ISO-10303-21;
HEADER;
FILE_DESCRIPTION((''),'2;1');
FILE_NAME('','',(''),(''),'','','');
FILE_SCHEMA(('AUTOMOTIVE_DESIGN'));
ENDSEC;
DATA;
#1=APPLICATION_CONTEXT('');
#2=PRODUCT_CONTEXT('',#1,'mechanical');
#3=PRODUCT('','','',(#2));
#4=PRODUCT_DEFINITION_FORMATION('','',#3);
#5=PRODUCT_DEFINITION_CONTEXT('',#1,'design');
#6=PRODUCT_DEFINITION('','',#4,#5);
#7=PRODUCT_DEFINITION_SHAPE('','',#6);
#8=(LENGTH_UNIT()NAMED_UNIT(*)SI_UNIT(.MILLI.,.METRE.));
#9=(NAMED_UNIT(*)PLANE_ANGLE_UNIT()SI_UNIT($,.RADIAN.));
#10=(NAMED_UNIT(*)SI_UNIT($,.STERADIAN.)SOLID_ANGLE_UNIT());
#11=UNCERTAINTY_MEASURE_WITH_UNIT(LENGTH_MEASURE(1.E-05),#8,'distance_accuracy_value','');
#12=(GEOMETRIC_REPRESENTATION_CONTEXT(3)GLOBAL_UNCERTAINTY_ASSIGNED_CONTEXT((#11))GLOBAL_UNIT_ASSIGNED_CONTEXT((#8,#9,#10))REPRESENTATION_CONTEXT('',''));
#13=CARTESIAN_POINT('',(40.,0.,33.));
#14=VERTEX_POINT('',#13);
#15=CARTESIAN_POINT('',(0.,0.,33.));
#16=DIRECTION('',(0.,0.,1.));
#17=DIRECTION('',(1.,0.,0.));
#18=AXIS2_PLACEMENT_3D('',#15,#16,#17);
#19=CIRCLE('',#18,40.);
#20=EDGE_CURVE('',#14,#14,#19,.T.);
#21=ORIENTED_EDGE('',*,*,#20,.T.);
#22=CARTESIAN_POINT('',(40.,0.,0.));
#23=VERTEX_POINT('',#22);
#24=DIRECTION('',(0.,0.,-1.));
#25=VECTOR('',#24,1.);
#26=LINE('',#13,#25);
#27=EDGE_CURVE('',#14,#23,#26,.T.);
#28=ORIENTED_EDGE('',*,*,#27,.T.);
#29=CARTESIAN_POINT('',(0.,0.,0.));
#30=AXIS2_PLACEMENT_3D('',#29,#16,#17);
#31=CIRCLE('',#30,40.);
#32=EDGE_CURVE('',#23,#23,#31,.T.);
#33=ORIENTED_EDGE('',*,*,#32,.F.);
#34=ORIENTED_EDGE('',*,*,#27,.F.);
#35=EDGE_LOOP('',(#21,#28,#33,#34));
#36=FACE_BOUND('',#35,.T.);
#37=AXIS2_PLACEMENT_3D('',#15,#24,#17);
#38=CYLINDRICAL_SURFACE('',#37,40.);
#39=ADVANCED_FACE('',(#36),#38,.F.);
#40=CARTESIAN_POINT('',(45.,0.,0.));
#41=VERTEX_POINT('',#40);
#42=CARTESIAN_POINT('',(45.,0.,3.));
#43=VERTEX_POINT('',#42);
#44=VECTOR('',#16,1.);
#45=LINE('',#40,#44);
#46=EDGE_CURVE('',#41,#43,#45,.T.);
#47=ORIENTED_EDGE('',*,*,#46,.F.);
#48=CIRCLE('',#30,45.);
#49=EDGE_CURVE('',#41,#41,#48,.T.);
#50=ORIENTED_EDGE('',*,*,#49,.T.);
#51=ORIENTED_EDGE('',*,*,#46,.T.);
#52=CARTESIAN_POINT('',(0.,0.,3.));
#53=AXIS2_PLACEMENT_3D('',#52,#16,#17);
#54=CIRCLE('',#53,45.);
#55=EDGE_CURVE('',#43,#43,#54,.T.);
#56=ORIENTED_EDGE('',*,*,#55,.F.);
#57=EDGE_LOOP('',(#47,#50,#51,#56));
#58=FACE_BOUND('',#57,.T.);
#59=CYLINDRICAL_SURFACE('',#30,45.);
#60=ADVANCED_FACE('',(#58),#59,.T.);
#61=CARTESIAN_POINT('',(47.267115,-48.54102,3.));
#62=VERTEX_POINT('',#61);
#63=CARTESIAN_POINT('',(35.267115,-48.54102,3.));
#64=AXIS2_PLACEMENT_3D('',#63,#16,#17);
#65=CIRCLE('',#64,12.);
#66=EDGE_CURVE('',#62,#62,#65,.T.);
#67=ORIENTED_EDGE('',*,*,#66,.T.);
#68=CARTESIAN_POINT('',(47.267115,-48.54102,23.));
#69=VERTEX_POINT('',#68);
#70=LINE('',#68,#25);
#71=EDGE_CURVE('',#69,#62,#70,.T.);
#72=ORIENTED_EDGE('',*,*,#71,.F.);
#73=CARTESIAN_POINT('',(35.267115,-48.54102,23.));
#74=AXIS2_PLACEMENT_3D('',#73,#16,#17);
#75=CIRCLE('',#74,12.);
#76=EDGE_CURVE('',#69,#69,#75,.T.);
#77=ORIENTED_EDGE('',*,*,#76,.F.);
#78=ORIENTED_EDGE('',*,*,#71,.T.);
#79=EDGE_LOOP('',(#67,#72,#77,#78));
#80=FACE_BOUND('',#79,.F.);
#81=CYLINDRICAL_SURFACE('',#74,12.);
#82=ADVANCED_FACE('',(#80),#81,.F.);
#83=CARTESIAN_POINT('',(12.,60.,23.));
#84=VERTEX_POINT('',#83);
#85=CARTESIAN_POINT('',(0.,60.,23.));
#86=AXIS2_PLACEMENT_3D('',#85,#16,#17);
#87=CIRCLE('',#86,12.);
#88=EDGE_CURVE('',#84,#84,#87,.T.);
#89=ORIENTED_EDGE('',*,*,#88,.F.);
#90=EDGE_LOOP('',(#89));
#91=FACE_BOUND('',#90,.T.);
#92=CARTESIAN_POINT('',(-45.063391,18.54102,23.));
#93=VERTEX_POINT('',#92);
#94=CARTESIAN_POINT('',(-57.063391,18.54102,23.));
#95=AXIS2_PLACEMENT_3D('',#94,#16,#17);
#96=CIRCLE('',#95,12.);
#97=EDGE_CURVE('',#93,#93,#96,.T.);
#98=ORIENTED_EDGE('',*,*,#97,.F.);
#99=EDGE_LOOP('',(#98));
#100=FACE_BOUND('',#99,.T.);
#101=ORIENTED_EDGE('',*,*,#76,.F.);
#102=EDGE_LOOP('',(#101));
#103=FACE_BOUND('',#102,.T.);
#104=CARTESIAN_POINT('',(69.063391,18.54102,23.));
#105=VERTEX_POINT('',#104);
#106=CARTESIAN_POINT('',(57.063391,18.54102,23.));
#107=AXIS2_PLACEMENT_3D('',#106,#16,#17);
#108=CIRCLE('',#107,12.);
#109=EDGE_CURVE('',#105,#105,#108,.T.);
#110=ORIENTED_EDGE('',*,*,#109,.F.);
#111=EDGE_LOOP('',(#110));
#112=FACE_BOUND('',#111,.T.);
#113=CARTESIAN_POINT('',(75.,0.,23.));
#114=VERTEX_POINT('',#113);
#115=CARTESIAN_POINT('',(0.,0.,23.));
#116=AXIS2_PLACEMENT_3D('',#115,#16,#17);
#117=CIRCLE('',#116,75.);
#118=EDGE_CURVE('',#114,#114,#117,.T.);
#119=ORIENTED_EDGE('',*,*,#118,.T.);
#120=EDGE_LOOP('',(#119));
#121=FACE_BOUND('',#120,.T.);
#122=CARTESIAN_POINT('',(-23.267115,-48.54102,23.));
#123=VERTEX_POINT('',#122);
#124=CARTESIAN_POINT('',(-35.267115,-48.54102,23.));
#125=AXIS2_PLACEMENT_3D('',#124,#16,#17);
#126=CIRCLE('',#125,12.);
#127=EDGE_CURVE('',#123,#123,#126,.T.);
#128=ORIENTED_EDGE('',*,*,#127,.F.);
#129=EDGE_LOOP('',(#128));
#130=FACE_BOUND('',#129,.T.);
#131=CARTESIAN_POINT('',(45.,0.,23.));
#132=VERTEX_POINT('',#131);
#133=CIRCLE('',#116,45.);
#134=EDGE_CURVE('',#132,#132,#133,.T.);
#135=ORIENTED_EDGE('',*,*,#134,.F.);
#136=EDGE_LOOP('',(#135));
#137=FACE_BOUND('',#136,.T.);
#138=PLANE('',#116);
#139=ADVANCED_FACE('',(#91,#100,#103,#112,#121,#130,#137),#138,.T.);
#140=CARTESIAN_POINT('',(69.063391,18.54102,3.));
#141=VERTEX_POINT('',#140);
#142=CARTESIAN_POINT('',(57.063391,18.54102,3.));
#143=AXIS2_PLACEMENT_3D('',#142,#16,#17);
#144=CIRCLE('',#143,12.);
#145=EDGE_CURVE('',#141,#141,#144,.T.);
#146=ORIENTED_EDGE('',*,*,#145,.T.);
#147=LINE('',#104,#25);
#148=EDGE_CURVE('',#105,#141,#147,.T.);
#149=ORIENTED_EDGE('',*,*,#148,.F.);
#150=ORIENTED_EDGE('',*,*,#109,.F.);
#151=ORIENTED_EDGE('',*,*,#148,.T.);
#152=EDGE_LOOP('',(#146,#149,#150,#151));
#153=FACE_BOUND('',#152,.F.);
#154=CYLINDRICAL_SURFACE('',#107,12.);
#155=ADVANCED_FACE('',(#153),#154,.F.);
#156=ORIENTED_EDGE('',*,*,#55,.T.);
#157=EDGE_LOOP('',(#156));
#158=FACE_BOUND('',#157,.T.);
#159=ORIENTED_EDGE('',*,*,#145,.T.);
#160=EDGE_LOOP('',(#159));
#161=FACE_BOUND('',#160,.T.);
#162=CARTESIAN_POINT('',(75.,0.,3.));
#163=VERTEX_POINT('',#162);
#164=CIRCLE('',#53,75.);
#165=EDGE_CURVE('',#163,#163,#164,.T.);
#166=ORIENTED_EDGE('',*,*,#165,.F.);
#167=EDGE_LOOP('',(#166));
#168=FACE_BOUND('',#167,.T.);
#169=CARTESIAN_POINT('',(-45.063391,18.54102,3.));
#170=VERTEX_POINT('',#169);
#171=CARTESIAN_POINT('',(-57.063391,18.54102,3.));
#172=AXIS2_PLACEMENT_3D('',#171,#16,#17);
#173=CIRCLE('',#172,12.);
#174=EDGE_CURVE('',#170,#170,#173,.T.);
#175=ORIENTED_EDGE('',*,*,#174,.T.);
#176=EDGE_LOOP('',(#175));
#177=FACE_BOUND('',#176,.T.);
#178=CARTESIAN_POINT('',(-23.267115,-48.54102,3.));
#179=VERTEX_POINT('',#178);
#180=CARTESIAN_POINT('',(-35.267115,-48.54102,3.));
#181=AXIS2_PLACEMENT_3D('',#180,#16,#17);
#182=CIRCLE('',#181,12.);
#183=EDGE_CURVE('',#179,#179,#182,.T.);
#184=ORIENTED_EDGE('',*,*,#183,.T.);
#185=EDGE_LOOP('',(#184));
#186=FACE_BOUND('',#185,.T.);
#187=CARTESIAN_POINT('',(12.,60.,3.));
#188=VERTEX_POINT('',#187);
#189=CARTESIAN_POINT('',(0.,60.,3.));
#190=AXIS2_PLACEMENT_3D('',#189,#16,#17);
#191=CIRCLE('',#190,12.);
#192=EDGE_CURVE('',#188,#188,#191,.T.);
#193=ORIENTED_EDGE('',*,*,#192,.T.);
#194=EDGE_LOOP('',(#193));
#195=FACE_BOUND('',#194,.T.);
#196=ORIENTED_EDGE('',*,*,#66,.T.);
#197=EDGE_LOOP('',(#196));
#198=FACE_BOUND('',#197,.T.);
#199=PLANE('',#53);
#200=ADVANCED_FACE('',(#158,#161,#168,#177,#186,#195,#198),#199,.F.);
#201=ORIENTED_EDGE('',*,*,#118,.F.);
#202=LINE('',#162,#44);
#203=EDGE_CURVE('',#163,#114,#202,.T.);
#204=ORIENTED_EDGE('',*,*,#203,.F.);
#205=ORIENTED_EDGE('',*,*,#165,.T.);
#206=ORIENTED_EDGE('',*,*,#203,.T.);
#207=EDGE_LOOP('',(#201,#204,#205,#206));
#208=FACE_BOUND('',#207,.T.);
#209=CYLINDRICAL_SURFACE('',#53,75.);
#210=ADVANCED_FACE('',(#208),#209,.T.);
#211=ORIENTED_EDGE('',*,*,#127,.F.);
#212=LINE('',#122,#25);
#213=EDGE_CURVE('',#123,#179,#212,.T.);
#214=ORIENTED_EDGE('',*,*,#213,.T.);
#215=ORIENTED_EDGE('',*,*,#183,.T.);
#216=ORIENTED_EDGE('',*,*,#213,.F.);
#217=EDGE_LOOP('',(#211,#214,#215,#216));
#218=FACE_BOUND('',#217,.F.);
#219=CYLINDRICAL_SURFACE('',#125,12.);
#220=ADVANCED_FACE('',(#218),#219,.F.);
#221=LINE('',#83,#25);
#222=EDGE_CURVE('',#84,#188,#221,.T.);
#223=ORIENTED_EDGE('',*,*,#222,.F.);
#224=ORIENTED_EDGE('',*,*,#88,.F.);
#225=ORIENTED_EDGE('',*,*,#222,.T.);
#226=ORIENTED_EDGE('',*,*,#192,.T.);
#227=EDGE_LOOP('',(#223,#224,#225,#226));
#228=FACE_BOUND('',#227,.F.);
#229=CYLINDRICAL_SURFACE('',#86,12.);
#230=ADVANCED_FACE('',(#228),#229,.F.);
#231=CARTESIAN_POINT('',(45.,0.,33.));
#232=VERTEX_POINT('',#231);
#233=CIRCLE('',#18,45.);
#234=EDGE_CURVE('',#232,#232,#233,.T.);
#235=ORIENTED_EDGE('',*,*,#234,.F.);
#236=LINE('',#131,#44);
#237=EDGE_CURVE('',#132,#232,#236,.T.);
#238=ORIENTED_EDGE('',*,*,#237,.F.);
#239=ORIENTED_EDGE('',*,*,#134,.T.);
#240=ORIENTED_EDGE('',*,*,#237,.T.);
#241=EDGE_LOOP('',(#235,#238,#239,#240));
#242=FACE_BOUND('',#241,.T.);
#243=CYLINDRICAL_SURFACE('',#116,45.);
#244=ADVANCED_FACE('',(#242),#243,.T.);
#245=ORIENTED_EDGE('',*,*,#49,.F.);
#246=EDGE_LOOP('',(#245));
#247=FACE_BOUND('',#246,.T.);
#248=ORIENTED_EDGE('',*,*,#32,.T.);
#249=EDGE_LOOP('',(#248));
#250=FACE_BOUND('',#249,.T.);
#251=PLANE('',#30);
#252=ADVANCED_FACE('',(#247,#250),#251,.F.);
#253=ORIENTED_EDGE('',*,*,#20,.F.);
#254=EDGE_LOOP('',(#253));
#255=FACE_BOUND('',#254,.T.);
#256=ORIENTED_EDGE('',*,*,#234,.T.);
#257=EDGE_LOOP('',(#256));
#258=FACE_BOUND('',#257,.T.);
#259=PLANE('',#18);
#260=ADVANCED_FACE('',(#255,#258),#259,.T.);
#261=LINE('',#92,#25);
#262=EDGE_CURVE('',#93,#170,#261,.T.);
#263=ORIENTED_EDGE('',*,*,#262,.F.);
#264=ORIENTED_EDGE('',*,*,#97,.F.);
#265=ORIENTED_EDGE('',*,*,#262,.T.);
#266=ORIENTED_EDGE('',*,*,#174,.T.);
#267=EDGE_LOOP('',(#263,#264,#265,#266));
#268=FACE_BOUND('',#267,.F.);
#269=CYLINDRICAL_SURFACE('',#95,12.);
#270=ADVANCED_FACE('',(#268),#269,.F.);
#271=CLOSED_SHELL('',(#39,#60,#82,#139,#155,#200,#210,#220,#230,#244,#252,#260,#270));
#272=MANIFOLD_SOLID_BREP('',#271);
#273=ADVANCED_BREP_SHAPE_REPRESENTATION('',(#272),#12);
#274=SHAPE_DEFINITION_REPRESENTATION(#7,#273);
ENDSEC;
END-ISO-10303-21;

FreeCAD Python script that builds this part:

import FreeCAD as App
import Part
import Sketcher
Q = App.Units.Quantity


def add_polygon(sketch, points):
    """Adds a closed chain of lines whose ends are joined by coincident constraints."""
    first, n = sketch.GeometryCount, len(points)
    for a, b in zip(points, points[1:] + points[:1]):
        sketch.addGeometry(Part.LineSegment(App.Vector(*a, 0), App.Vector(*b, 0)), False)
    for i in range(n):
        sketch.addConstraint(Sketcher.Constraint("Coincident", first + i, 2, first + (i + 1) % n, 1))

doc = App.newDocument("Part")
body = doc.addObject("PartDesign::Body", "Body")

# Sketch on XZ plane
sketch1 = doc.addObject("Sketcher::SketchObject", "Sketch")
body.addObject(sketch1)
sketch1.AttachmentSupport = (doc.XZ_Plane, [""])
sketch1.MapMode = "FlatFace"
add_polygon(sketch1, [(40, 33), (40, 0), (45, 0), (45, 3), (75, 3), (75, 23), (45, 23), (45, 33)])  # lines 0-7
sketch1.addConstraint([
    Sketcher.Constraint("Vertical", 0),
    Sketcher.Constraint("Horizontal", 1),
    Sketcher.Constraint("Vertical", 2),
    Sketcher.Constraint("Horizontal", 3),
    Sketcher.Constraint("Vertical", 4),
    Sketcher.Constraint("Horizontal", 5),
    Sketcher.Constraint("Vertical", 6),
    Sketcher.Constraint("Horizontal", 7),
    Sketcher.Constraint("PointOnObject", 0, 2, -1),
    Sketcher.Constraint("Vertical", 2, 2, 5, 2),
    Sketcher.Constraint("DistanceX", 1, 1, 1, 2, Q("5 mm")),
    Sketcher.Constraint("DistanceX", 3, 1, 3, 2, Q("30 mm")),
    Sketcher.Constraint("DistanceY", 0, 2, 0, 1, Q("33 mm")),
    Sketcher.Constraint("DistanceY", 2, 1, 2, 2, Q("3 mm")),
    Sketcher.Constraint("DistanceY", 4, 1, 4, 2, Q("20 mm")),
    Sketcher.Constraint("DistanceX", -1, 1, 0, 2, Q("40 mm")),
])
revolution = doc.addObject("PartDesign::Revolution", "Revolution")
body.addObject(revolution)
revolution.Profile = sketch1
revolution.ReferenceAxis = (sketch1, ["V_Axis"])
revolution.Angle = 360

# Sketch on XY plane
sketch2 = doc.addObject("Sketcher::SketchObject", "Sketch001")
body.addObject(sketch2)
sketch2.AttachmentSupport = (doc.XY_Plane, [""])
sketch2.MapMode = "FlatFace"
sketch2.AttachmentOffset = App.Placement(App.Vector(0, 0, 23), App.Rotation())
sketch2.addGeometry([
    Part.Circle(App.Vector(0, 60, 0), App.Vector(0, 0, 1), 12),  # 0
    Part.Circle(App.Vector(-57, 19, 0), App.Vector(0, 0, 1), 12),  # 1
    Part.Circle(App.Vector(-35, -49, 0), App.Vector(0, 0, 1), 12),  # 2
    Part.Circle(App.Vector(35, -49, 0), App.Vector(0, 0, 1), 12),  # 3
    Part.Circle(App.Vector(57, 19, 0), App.Vector(0, 0, 1), 12),  # 4
], False)
sketch2.addConstraint([
    Sketcher.Constraint("Equal", 0, 1),
    Sketcher.Constraint("Equal", 1, 2),
    Sketcher.Constraint("Equal", 2, 3),
    Sketcher.Constraint("Equal", 3, 4),
    Sketcher.Constraint("Symmetric", 2, 3, 3, 3, -2),
    Sketcher.Constraint("Symmetric", 1, 3, 4, 3, -2),
    Sketcher.Constraint("PointOnObject", 0, 3, -2),
    Sketcher.Constraint("Diameter", 0, Q("24 mm")),
    Sketcher.Constraint("DistanceY", -1, 1, 0, 3, Q("60 mm")),
    Sketcher.Constraint("DistanceX", 1, 3, -1, 1, Q("57.063391 mm")),
    Sketcher.Constraint("DistanceY", -1, 1, 1, 3, Q("18.54102 mm")),
    Sketcher.Constraint("DistanceY", 2, 3, -1, 1, Q("48.54102 mm")),
    Sketcher.Constraint("DistanceX", 2, 3, 3, 3, Q("70.53423 mm")),
])
pocket1 = doc.addObject("PartDesign::Pocket", "Pocket")
body.addObject(pocket1)
pocket1.Profile = sketch2
pocket1.Type = "ThroughAll"

doc.recompute()
